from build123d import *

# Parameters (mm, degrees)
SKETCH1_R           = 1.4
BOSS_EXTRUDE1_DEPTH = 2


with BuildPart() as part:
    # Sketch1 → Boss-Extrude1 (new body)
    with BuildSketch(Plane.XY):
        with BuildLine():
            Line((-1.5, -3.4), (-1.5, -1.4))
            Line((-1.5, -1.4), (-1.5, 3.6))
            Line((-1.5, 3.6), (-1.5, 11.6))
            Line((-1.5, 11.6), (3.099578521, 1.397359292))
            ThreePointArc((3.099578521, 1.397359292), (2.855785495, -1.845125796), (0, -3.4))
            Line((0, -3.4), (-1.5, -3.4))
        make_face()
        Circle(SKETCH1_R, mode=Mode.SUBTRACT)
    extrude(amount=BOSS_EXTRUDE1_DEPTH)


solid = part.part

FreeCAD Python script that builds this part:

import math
import FreeCAD as App
import Part
import Sketcher
from FreeCAD import Vector

doc = App.newDocument("Part")
params = doc.addObject("Spreadsheet::Sheet", "Params")
for row, (alias, value) in enumerate([
    ("sketch1_diameter", "2.8 mm"),
    ("sketch1_radius", "3.4 mm"),
    ("sketch1_height", "15 mm"),
    ("sketch1_width", "1.5 mm"),
    ("pad1_length", "2 mm"),
], start=1):
    params.set(f"A{row}", alias)
    params.set(f"B{row}", "=" + value)
    params.setAlias(f"B{row}", alias)

body = doc.addObject("PartDesign::Body", "Body")

sketch1 = body.newObject("Sketcher::SketchObject", "Sketch")
sketch1.AttachmentSupport = (doc.getObject("XY_Plane"), [""])
sketch1.MapMode = "FlatFace"
sketch1.addGeometry(Part.LineSegment(Vector(-1.5, 11.6, 0), Vector(-1.5, -3.4, 0)), False)
sketch1.addGeometry(Part.LineSegment(Vector(-1.5, -3.4, 0), Vector(0, -3.4, 0)), False)
sketch1.addGeometry(Part.ArcOfCircle(Part.Circle(Vector(0, 0, 0), Vector(0, 0, 1), 3.4), math.radians(-90), math.radians(24)), False)
sketch1.addGeometry(Part.LineSegment(Vector(3.1, 1.4, 0), Vector(-1.5, 11.6, 0)), False)
sketch1.addGeometry(Part.Circle(Vector(0, 0, 0), Vector(0, 0, 1), 1.4), False)
sketch1.addConstraint(Sketcher.Constraint("Coincident", 0, 2, 1, 1))
sketch1.addConstraint(Sketcher.Constraint("Tangent", 1, 2, 2, 1))
sketch1.addConstraint(Sketcher.Constraint("Tangent", 2, 2, 3, 1))
sketch1.addConstraint(Sketcher.Constraint("Coincident", 3, 2, 0, 1))
sketch1.addConstraint(Sketcher.Constraint("Vertical", 0))
sketch1.addConstraint(Sketcher.Constraint("Horizontal", 1))
sketch1.addConstraint(Sketcher.Constraint("Coincident", 2, 3, -1, 1))
sketch1.addConstraint(Sketcher.Constraint("Coincident", 4, 3, -1, 1))
sketch1.addConstraint(Sketcher.Constraint("Diameter", 4, 2.8))
sketch1.addConstraint(Sketcher.Constraint("Radius", 2, 3.4))
sketch1.addConstraint(Sketcher.Constraint("DistanceY", 0, 2, 0, 1, 15.0))
sketch1.addConstraint(Sketcher.Constraint("DistanceX", 1, 1, 1, 2, 1.5))
sketch1.setExpression("Constraints[8]", "Params.sketch1_diameter")
sketch1.setExpression("Constraints[9]", "Params.sketch1_radius")
sketch1.setExpression("Constraints[10]", "Params.sketch1_height")
sketch1.setExpression("Constraints[11]", "Params.sketch1_width")
pad1 = body.newObject("PartDesign::Pad", "Pad")
pad1.Profile = sketch1
pad1.setExpression("Length", "Params.pad1_length")

doc.recompute()
